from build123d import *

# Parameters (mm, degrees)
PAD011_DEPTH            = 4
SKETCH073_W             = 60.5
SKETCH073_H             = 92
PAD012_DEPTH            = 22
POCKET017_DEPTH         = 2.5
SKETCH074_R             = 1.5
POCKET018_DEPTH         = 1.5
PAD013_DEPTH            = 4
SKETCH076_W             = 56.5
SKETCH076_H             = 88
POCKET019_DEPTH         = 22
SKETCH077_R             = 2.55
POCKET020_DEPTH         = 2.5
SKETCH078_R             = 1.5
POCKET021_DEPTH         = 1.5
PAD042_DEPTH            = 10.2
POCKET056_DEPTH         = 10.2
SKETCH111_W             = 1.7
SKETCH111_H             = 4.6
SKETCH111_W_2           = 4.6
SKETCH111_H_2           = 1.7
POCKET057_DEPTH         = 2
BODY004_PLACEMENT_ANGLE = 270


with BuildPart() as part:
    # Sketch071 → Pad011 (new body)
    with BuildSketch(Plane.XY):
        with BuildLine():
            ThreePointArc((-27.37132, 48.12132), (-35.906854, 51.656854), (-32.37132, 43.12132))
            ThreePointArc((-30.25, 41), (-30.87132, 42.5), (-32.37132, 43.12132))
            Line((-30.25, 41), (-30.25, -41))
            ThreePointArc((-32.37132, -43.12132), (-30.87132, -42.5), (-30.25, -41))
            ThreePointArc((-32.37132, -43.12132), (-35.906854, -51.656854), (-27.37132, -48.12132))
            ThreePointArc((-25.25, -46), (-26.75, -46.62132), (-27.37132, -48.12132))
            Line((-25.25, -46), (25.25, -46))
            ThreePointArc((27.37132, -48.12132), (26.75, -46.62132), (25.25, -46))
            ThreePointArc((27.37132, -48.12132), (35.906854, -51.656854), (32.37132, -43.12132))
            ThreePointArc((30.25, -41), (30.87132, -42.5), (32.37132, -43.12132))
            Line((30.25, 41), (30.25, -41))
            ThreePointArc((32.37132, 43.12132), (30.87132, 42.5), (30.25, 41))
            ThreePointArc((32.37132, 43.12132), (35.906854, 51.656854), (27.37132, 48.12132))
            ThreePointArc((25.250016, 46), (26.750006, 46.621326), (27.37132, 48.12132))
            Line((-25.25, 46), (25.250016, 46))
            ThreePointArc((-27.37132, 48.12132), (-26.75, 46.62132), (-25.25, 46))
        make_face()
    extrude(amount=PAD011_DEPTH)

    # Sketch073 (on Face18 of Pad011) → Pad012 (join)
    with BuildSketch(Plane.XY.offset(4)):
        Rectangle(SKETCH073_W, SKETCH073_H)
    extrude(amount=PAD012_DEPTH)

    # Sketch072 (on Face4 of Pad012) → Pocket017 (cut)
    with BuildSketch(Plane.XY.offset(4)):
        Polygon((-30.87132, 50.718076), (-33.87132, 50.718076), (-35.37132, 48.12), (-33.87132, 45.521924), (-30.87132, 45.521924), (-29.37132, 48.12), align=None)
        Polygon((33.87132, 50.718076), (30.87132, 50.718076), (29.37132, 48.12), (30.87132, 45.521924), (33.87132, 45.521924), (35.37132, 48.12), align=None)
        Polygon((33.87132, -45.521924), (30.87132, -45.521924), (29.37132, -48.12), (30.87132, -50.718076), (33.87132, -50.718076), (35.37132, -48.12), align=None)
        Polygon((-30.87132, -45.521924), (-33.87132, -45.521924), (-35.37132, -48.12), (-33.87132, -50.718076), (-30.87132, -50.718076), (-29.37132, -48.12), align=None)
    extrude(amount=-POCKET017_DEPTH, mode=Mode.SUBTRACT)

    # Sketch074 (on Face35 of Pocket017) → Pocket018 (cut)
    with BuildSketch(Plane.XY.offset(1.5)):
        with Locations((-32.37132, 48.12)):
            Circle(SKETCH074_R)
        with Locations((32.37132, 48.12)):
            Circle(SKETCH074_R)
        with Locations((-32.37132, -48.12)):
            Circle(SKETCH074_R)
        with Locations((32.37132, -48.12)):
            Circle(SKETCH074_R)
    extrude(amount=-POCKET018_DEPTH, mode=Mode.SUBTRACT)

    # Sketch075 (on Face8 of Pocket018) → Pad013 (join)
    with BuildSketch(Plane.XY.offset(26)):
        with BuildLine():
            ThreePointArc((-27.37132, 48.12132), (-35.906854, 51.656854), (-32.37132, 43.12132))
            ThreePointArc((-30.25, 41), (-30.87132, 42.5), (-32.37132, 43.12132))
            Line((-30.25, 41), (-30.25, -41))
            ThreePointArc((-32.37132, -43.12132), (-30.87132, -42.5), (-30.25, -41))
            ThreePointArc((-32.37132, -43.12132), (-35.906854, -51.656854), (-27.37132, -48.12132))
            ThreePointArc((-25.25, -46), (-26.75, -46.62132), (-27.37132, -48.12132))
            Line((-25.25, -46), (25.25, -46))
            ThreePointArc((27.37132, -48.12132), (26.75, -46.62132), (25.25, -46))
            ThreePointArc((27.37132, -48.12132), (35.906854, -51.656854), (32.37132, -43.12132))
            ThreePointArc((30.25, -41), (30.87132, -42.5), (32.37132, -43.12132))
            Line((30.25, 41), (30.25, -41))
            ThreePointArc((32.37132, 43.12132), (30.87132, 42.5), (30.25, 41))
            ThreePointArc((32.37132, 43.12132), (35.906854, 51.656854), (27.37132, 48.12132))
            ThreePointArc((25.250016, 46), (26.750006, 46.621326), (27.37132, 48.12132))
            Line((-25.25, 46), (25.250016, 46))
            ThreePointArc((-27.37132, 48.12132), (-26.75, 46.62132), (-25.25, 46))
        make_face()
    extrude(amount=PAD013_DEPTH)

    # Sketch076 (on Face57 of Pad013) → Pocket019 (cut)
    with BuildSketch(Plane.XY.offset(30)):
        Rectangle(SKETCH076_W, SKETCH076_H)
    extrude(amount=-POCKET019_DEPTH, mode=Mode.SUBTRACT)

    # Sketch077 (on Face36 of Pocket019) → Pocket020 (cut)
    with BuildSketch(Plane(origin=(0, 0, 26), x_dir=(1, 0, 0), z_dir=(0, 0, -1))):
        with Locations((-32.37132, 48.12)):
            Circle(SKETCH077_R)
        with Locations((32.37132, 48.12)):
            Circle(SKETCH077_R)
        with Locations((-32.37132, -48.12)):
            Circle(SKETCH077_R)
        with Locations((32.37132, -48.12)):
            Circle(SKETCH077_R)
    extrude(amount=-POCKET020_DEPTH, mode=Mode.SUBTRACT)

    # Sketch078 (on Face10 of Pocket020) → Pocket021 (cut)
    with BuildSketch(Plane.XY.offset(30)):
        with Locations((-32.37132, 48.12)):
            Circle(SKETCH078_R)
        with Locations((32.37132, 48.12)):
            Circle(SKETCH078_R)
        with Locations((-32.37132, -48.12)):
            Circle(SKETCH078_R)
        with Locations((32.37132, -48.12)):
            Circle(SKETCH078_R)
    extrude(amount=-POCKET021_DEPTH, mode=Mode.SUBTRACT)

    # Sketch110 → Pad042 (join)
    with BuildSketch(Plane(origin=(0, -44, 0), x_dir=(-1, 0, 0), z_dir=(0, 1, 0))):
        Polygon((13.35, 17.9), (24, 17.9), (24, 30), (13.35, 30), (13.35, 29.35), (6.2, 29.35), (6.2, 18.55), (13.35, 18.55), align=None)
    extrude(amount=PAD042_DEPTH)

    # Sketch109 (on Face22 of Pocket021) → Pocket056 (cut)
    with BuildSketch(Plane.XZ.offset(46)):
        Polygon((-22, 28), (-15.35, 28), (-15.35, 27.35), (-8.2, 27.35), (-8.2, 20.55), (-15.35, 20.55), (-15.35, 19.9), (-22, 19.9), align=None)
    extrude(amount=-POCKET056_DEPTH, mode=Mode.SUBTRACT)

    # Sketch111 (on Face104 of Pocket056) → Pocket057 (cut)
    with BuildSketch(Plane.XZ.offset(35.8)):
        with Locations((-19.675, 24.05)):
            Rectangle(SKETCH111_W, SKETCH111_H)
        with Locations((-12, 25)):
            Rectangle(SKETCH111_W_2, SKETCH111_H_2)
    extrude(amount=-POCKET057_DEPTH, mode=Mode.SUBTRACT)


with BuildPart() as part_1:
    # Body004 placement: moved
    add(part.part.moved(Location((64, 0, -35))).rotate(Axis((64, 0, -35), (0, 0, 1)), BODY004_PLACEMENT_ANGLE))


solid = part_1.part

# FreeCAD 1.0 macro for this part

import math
import FreeCAD as App
import Part
import Sketcher
Q = App.Units.Quantity

doc = App.newDocument("Part")
params = doc.addObject("Spreadsheet::Sheet", "Params")
for row, (alias, value) in enumerate([
    ("sketch1_radius", "5 mm"),
    ("sketch1_height", "82 mm"),
    ("sketch1_width", "50.5 mm"),
    ("pad1_length", "4 mm"),
    ("sketch2_height", "92 mm"),
    ("sketch2_width", "60.5 mm"),
    ("pad2_length", "22 mm"),
    ("sketch3_width", "3 mm"),
    ("sketch3_length", "3 mm"),
    ("pocket1_length", "2.5 mm"),
    ("sketch4_diameter", "3 mm"),
    ("pocket2_length", "1.5 mm"),
    ("sketch5_radius", "5 mm"),
    ("sketch5_height", "82 mm"),
    ("sketch5_width", "50.5 mm"),
    ("pad3_length", "4 mm"),
    ("sketch6_height", "88 mm"),
    ("sketch6_width", "56.5 mm"),
    ("pocket3_length", "22 mm"),
    ("sketch7_diameter", "5.1 mm"),
    ("pocket4_length", "2.5 mm"),
    ("sketch8_diameter", "3 mm"),
    ("pocket5_length", "1.5 mm"),
    ("sketch9_height", "12.1 mm"),
    ("sketch9_height2", "10.8 mm"),
    ("sketch9_width", "10.65 mm"),
    ("sketch9_width2", "7.15 mm"),
    ("pad4_length", "10.2 mm"),
    ("sketch10_height", "8.1 mm"),
    ("sketch10_height2", "6.8 mm"),
    ("sketch10_width", "6.65 mm"),
    ("sketch10_width2", "7.15 mm"),
    ("pocket6_length", "10.2 mm"),
    ("sketch11_width", "1.7 mm"),
    ("sketch11_width2", "4.6 mm"),
    ("pocket7_length", "2 mm"),
], start=1):
    params.set(f"A{row}", alias)
    params.set(f"B{row}", "=" + value)
    params.setAlias(f"B{row}", alias)

body = doc.addObject("PartDesign::Body", "Body")

# Sketch on XY plane
sketch1 = body.newObject("Sketcher::SketchObject", "Sketch")
sketch1.AttachmentSupport = (doc.getObject("XY_Plane"), [""])
sketch1.MapMode = "FlatFace"
sketch1.addGeometry([
    Part.ArcOfCircle(Part.Circle(App.Vector(-32.4, 48.1, 0), App.Vector(0, 0, 1), 5), math.radians(0), math.radians(270)),  # 0
    Part.ArcOfCircle(Part.Circle(App.Vector(-32.4, 41, 0), App.Vector(0, 0, 1), 2.1), math.radians(0), math.radians(90)),  # 1
    Part.LineSegment(App.Vector(-30.2, 41, 0), App.Vector(-30.2, -41, 0)),  # 2
    Part.ArcOfCircle(Part.Circle(App.Vector(-32.4, -41, 0), App.Vector(0, 0, 1), 2.1), math.radians(-90), math.radians(0)),  # 3
    Part.ArcOfCircle(Part.Circle(App.Vector(-32.4, -48.1, 0), App.Vector(0, 0, 1), 5), math.radians(90), math.radians(360)),  # 4
    Part.ArcOfCircle(Part.Circle(App.Vector(-25.3, -48.1, 0), App.Vector(0, 0, 1), 2.1), math.radians(90), math.radians(180)),  # 5
    Part.LineSegment(App.Vector(-25.2, -46, 0), App.Vector(25.2, -46, 0)),  # 6
    Part.ArcOfCircle(Part.Circle(App.Vector(25.3, -48.1, 0), App.Vector(0, 0, 1), 2.1), math.radians(0), math.radians(90)),  # 7
    Part.ArcOfCircle(Part.Circle(App.Vector(32.4, -48.1, 0), App.Vector(0, 0, 1), 5), math.radians(180), math.radians(450)),  # 8
    Part.ArcOfCircle(Part.Circle(App.Vector(32.4, -41, 0), App.Vector(0, 0, 1), 2.1), math.radians(180), math.radians(270)),  # 9
    Part.LineSegment(App.Vector(30.2, -41, 0), App.Vector(30.2, 41, 0)),  # 10
    Part.ArcOfCircle(Part.Circle(App.Vector(32.4, 41, 0), App.Vector(0, 0, 1), 2.1), math.radians(90), math.radians(180)),  # 11
    Part.ArcOfCircle(Part.Circle(App.Vector(32.4, 48.1, 0), App.Vector(0, 0, 1), 5), math.radians(-90), math.radians(180)),  # 12
    Part.ArcOfCircle(Part.Circle(App.Vector(25.3, 48.1, 0), App.Vector(0, 0, 1), 2.1), math.radians(-90), math.radians(0)),  # 13
    Part.LineSegment(App.Vector(25.3, 46, 0), App.Vector(-25.2, 46, 0)),  # 14
    Part.ArcOfCircle(Part.Circle(App.Vector(-25.3, 48.1, 0), App.Vector(0, 0, 1), 2.1), math.radians(180), math.radians(270)),  # 15
], False)
sketch1.addConstraint([
    Sketcher.Constraint("Tangent", 0, 2, 1, 2),
    Sketcher.Constraint("Tangent", 1, 1, 2, 1),
    Sketcher.Constraint("Tangent", 2, 2, 3, 2),
    Sketcher.Constraint("Tangent", 3, 1, 4, 1),
    Sketcher.Constraint("Tangent", 4, 2, 5, 2),
    Sketcher.Constraint("Tangent", 5, 1, 6, 1),
    Sketcher.Constraint("Tangent", 6, 2, 7, 2),
    Sketcher.Constraint("Tangent", 7, 1, 8, 1),
    Sketcher.Constraint("Tangent", 8, 2, 9, 2),
    Sketcher.Constraint("Tangent", 9, 1, 10, 1),
    Sketcher.Constraint("Tangent", 10, 2, 11, 2),
    Sketcher.Constraint("Tangent", 11, 1, 12, 1),
    Sketcher.Constraint("Tangent", 12, 2, 13, 2),
    Sketcher.Constraint("Coincident", 13, 1, 14, 1),
    Sketcher.Constraint("Tangent", 14, 2, 15, 2),
    Sketcher.Constraint("Tangent", 15, 1, 0, 1),
    Sketcher.Constraint("Vertical", 2),
    Sketcher.Constraint("Horizontal", 6),
    Sketcher.Constraint("Vertical", 10),
    Sketcher.Constraint("Horizontal", 14),
    Sketcher.Constraint("Equal", 1, 3),
    Sketcher.Constraint("Equal", 0, 4),
    Sketcher.Constraint("Equal", 3, 5),
    Sketcher.Constraint("Equal", 5, 7),
    Sketcher.Constraint("Equal", 4, 8),
    Sketcher.Constraint("Equal", 7, 9),
    Sketcher.Constraint("Equal", 9, 11),
    Sketcher.Constraint("Equal", 8, 12),
    Sketcher.Constraint("Equal", 11, 13),
    Sketcher.Constraint("Equal", 13, 15),
    Sketcher.Constraint("Symmetric", 0, 3, 8, 3, -1, 1),
    Sketcher.Constraint("Symmetric", 3, 3, 11, 3, -1, 1),
    Sketcher.Constraint("Symmetric", 5, 3, 13, 3, -1, 1),
    Sketcher.Constraint("Symmetric", 4, 3, 8, 3, -2),
    Sketcher.Constraint("Horizontal", 4, 3, 5, 3),
    Sketcher.Constraint("Vertical", 0, 3, 1, 3),
    Sketcher.Constraint("Radius", 0, 5.0),
    Sketcher.Constraint("DistanceY", 2, 2, 2, 1, 82.0),
    Sketcher.Constraint("DistanceX", 6, 1, 6, 2, 50.5),
    Sketcher.Constraint("Radius", 1, 2.121319),
    Sketcher.Constraint("DistanceX", 14, 2, 14, 1, 50.500016),
])
sketch1.setExpression("Constraints[36]", "Params.sketch1_radius")
sketch1.setExpression("Constraints[37]", "Params.sketch1_height")
sketch1.setExpression("Constraints[38]", "Params.sketch1_width")
pad1 = body.newObject("PartDesign::Pad", "Pad")
pad1.Profile = sketch1
pad1.setExpression("Length", "Params.pad1_length")

# Sketch on XY plane
sketch2 = body.newObject("Sketcher::SketchObject", "Sketch001")
sketch2.AttachmentSupport = (doc.getObject("XY_Plane"), [""])
sketch2.MapMode = "FlatFace"
sketch2.AttachmentOffset = App.Placement(App.Vector(0, 0, 4), App.Rotation())
sketch2.addGeometry([
    Part.LineSegment(App.Vector(-30, 46, 0), App.Vector(-30, -46, 0)),
    Part.LineSegment(App.Vector(-30, -46, 0), App.Vector(30, -46, 0)),
    Part.LineSegment(App.Vector(30, -46, 0), App.Vector(30, 46, 0)),
    Part.LineSegment(App.Vector(30, 46, 0), App.Vector(-30, 46, 0)),
], False)
sketch2.addConstraint([
    Sketcher.Constraint("Coincident", 0, 2, 1, 1),
    Sketcher.Constraint("Coincident", 1, 2, 2, 1),
    Sketcher.Constraint("Coincident", 2, 2, 3, 1),
    Sketcher.Constraint("Coincident", 3, 2, 0, 1),
    Sketcher.Constraint("Vertical", 0),
    Sketcher.Constraint("Horizontal", 1),
    Sketcher.Constraint("Vertical", 2),
    Sketcher.Constraint("Horizontal", 3),
    Sketcher.Constraint("Symmetric", 0, 2, 2, 2, -1, 1),
    Sketcher.Constraint("DistanceY", 0, 2, 0, 1, 92.0),
    Sketcher.Constraint("DistanceX", 1, 1, 1, 2, 60.5),
])
sketch2.setExpression("Constraints[9]", "Params.sketch2_height")
sketch2.setExpression("Constraints[10]", "Params.sketch2_width")
pad2 = body.newObject("PartDesign::Pad", "Pad001")
pad2.Profile = sketch2
pad2.setExpression("Length", "Params.pad2_length")

# Sketch on XY plane
sketch3 = body.newObject("Sketcher::SketchObject", "Sketch002")
sketch3.AttachmentSupport = (doc.getObject("XY_Plane"), [""])
sketch3.MapMode = "FlatFace"
sketch3.AttachmentOffset = App.Placement(App.Vector(0, 0, 4), App.Rotation())
sketch3.addGeometry([
    Part.LineSegment(App.Vector(-30.9, 50.7, 0), App.Vector(-33.9, 50.7, 0)),  # 0
    Part.LineSegment(App.Vector(-33.9, 50.7, 0), App.Vector(-35.4, 48.1, 0)),  # 1
    Part.LineSegment(App.Vector(-35.4, 48.1, 0), App.Vector(-33.9, 45.5, 0)),  # 2
    Part.LineSegment(App.Vector(-33.9, 45.5, 0), App.Vector(-30.9, 45.5, 0)),  # 3
    Part.LineSegment(App.Vector(-30.9, 45.5, 0), App.Vector(-29.4, 48.1, 0)),  # 4
    Part.LineSegment(App.Vector(-29.4, 48.1, 0), App.Vector(-30.9, 50.7, 0)),  # 5
    Part.LineSegment(App.Vector(33.9, 50.7, 0), App.Vector(30.9, 50.7, 0)),  # 6
    Part.LineSegment(App.Vector(30.9, 50.7, 0), App.Vector(29.4, 48.1, 0)),  # 7
    Part.LineSegment(App.Vector(29.4, 48.1, 0), App.Vector(30.9, 45.5, 0)),  # 8
    Part.LineSegment(App.Vector(30.9, 45.5, 0), App.Vector(33.9, 45.5, 0)),  # 9
    Part.LineSegment(App.Vector(33.9, 45.5, 0), App.Vector(35.4, 48.1, 0)),  # 10
    Part.LineSegment(App.Vector(35.4, 48.1, 0), App.Vector(33.9, 50.7, 0)),  # 11
    Part.LineSegment(App.Vector(33.9, -45.5, 0), App.Vector(30.9, -45.5, 0)),  # 12
    Part.LineSegment(App.Vector(30.9, -45.5, 0), App.Vector(29.4, -48.1, 0)),  # 13
    Part.LineSegment(App.Vector(29.4, -48.1, 0), App.Vector(30.9, -50.7, 0)),  # 14
    Part.LineSegment(App.Vector(30.9, -50.7, 0), App.Vector(33.9, -50.7, 0)),  # 15
    Part.LineSegment(App.Vector(33.9, -50.7, 0), App.Vector(35.4, -48.1, 0)),  # 16
    Part.LineSegment(App.Vector(35.4, -48.1, 0), App.Vector(33.9, -45.5, 0)),  # 17
    Part.LineSegment(App.Vector(-30.9, -45.5, 0), App.Vector(-33.9, -45.5, 0)),  # 18
    Part.LineSegment(App.Vector(-33.9, -45.5, 0), App.Vector(-35.4, -48.1, 0)),  # 19
    Part.LineSegment(App.Vector(-35.4, -48.1, 0), App.Vector(-33.9, -50.7, 0)),  # 20
    Part.LineSegment(App.Vector(-33.9, -50.7, 0), App.Vector(-30.9, -50.7, 0)),  # 21
    Part.LineSegment(App.Vector(-30.9, -50.7, 0), App.Vector(-29.4, -48.1, 0)),  # 22
    Part.LineSegment(App.Vector(-29.4, -48.1, 0), App.Vector(-30.9, -45.5, 0)),  # 23
], False)
sketch3.addConstraint([
    Sketcher.Constraint("Coincident", 0, 2, 1, 1),
    Sketcher.Constraint("Coincident", 1, 2, 2, 1),
    Sketcher.Constraint("Coincident", 2, 2, 3, 1),
    Sketcher.Constraint("Coincident", 3, 2, 4, 1),
    Sketcher.Constraint("Coincident", 4, 2, 5, 1),
    Sketcher.Constraint("Coincident", 5, 2, 0, 1),
    Sketcher.Constraint("Coincident", 6, 2, 7, 1),
    Sketcher.Constraint("Coincident", 7, 2, 8, 1),
    Sketcher.Constraint("Coincident", 8, 2, 9, 1),
    Sketcher.Constraint("Coincident", 9, 2, 10, 1),
    Sketcher.Constraint("Coincident", 10, 2, 11, 1),
    Sketcher.Constraint("Coincident", 11, 2, 6, 1),
    Sketcher.Constraint("Coincident", 12, 2, 13, 1),
    Sketcher.Constraint("Coincident", 13, 2, 14, 1),
    Sketcher.Constraint("Coincident", 14, 2, 15, 1),
    Sketcher.Constraint("Coincident", 15, 2, 16, 1),
    Sketcher.Constraint("Coincident", 16, 2, 17, 1),
    Sketcher.Constraint("Coincident", 17, 2, 12, 1),
    Sketcher.Constraint("Coincident", 18, 2, 19, 1),
    Sketcher.Constraint("Coincident", 19, 2, 20, 1),
    Sketcher.Constraint("Coincident", 20, 2, 21, 1),
    Sketcher.Constraint("Coincident", 21, 2, 22, 1),
    Sketcher.Constraint("Coincident", 22, 2, 23, 1),
    Sketcher.Constraint("Coincident", 23, 2, 18, 1),
    Sketcher.Constraint("Horizontal", 0),
    Sketcher.Constraint("Horizontal", 3),
    Sketcher.Constraint("Horizontal", 6),
    Sketcher.Constraint("Horizontal", 9),
    Sketcher.Constraint("Horizontal", 12),
    Sketcher.Constraint("Horizontal", 15),
    Sketcher.Constraint("Horizontal", 18),
    Sketcher.Constraint("Horizontal", 21),
    Sketcher.Constraint("Symmetric", 3, 2, 12, 2, -1, 1),
    Sketcher.Constraint("Symmetric", 4, 2, 13, 2, -1, 1),
    Sketcher.Constraint("Symmetric", 5, 2, 14, 2, -1, 1),
    Sketcher.Constraint("Symmetric", 1, 2, 16, 2, -1, 1),
    Sketcher.Constraint("Symmetric", 9, 2, 18, 2, -1, 1),
    Sketcher.Constraint("Symmetric", 10, 2, 19, 2, -1, 1),
    Sketcher.Constraint("Symmetric", 11, 2, 20, 2, -1, 1),
    Sketcher.Constraint("Symmetric", 7, 2, 22, 2, -1, 1),
    Sketcher.Constraint("Symmetric", 5, 2, 6, 2, -2),
    Sketcher.Constraint("Symmetric", 4, 2, 7, 2, -2),
    Sketcher.Constraint("Symmetric", 3, 2, 8, 2, -2),
    Sketcher.Constraint("Symmetric", 1, 2, 10, 2, -2),
    Sketcher.Constraint("Parallel", 1, 4),
    Sketcher.Constraint("Parallel", 2, 5),
    Sketcher.Constraint("Parallel", 4, 7),
    Sketcher.Constraint("Parallel", 7, 10),
    Sketcher.Constraint("Parallel", 8, 11),
    Sketcher.Constraint("Parallel", 13, 16),
    Sketcher.Constraint("Parallel", 14, 17),
    Sketcher.Constraint("Parallel", 19, 22),
    Sketcher.Constraint("Parallel", 20, 23),
    Sketcher.Constraint("Horizontal", 1, 2, 4, 2),
    Sketcher.Constraint("Vertical", 0, 2, 2, 2),
    Sketcher.Constraint("DistanceX", 0, 2, 0, 1, 3.0),
    Sketcher.Constraint("Angle", 1, Q("-120.000002 deg")),
    Sketcher.Constraint("Distance", 1, 3.0),
    Sketcher.Constraint("DistanceY", -1, 1, 1, 2, 48.12),
    Sketcher.Constraint("DistanceX", 0, 2, -1, 1, 33.87132),
])
sketch3.setExpression("Constraints[55]", "Params.sketch3_width")
sketch3.setExpression("Constraints[57]", "Params.sketch3_length")
pocket1 = body.newObject("PartDesign::Pocket", "Pocket")
pocket1.Profile = sketch3
pocket1.setExpression("Length", "Params.pocket1_length")

# Sketch on XY plane
sketch4 = body.newObject("Sketcher::SketchObject", "Sketch003")
sketch4.AttachmentSupport = (doc.getObject("XY_Plane"), [""])
sketch4.MapMode = "FlatFace"
sketch4.AttachmentOffset = App.Placement(App.Vector(0, 0, 1.5), App.Rotation())
sketch4.addGeometry([
    Part.Circle(App.Vector(-32.4, 48.1, 0), App.Vector(0, 0, 1), 1.5),
    Part.Circle(App.Vector(32.4, 48.1, 0), App.Vector(0, 0, 1), 1.5),
    Part.Circle(App.Vector(-32.4, -48.1, 0), App.Vector(0, 0, 1), 1.5),
    Part.Circle(App.Vector(32.4, -48.1, 0), App.Vector(0, 0, 1), 1.5),
], False)
sketch4.addConstraint([
    Sketcher.Constraint("Equal", 0, 1),
    Sketcher.Constraint("Equal", 1, 2),
    Sketcher.Constraint("Equal", 2, 3),
    Sketcher.Constraint("Symmetric", 1, 3, 2, 3, -1, 1),
    Sketcher.Constraint("Symmetric", 0, 3, 3, 3, -1, 1),
    Sketcher.Constraint("Symmetric", 0, 3, 1, 3, -2),
    Sketcher.Constraint("Diameter", 0, 3.0),
    Sketcher.Constraint("DistanceY", -1, 1, 0, 3, 48.12),
    Sketcher.Constraint("DistanceX", 0, 3, -1, 1, 32.37132),
])
sketch4.setExpression("Constraints[6]", "Params.sketch4_diameter")
pocket2 = body.newObject("PartDesign::Pocket", "Pocket001")
pocket2.Profile = sketch4
pocket2.setExpression("Length", "Params.pocket2_length")

# Sketch on XY plane
sketch5 = body.newObject("Sketcher::SketchObject", "Sketch004")
sketch5.AttachmentSupport = (doc.getObject("XY_Plane"), [""])
sketch5.MapMode = "FlatFace"
sketch5.AttachmentOffset = App.Placement(App.Vector(0, 0, 26), App.Rotation())
sketch5.addGeometry([
    Part.ArcOfCircle(Part.Circle(App.Vector(-32.4, 48.1, 0), App.Vector(0, 0, 1), 5), math.radians(0), math.radians(270)),  # 0
    Part.ArcOfCircle(Part.Circle(App.Vector(-32.4, 41, 0), App.Vector(0, 0, 1), 2.1), math.radians(0), math.radians(90)),  # 1
    Part.LineSegment(App.Vector(-30.2, 41, 0), App.Vector(-30.2, -41, 0)),  # 2
    Part.ArcOfCircle(Part.Circle(App.Vector(-32.4, -41, 0), App.Vector(0, 0, 1), 2.1), math.radians(-90), math.radians(0)),  # 3
    Part.ArcOfCircle(Part.Circle(App.Vector(-32.4, -48.1, 0), App.Vector(0, 0, 1), 5), math.radians(90), math.radians(360)),  # 4
    Part.ArcOfCircle(Part.Circle(App.Vector(-25.3, -48.1, 0), App.Vector(0, 0, 1), 2.1), math.radians(90), math.radians(180)),  # 5
    Part.LineSegment(App.Vector(-25.2, -46, 0), App.Vector(25.2, -46, 0)),  # 6
    Part.ArcOfCircle(Part.Circle(App.Vector(25.3, -48.1, 0), App.Vector(0, 0, 1), 2.1), math.radians(0), math.radians(90)),  # 7
    Part.ArcOfCircle(Part.Circle(App.Vector(32.4, -48.1, 0), App.Vector(0, 0, 1), 5), math.radians(180), math.radians(450)),  # 8
    Part.ArcOfCircle(Part.Circle(App.Vector(32.4, -41, 0), App.Vector(0, 0, 1), 2.1), math.radians(180), math.radians(270)),  # 9
    Part.LineSegment(App.Vector(30.2, -41, 0), App.Vector(30.2, 41, 0)),  # 10
    Part.ArcOfCircle(Part.Circle(App.Vector(32.4, 41, 0), App.Vector(0, 0, 1), 2.1), math.radians(90), math.radians(180)),  # 11
    Part.ArcOfCircle(Part.Circle(App.Vector(32.4, 48.1, 0), App.Vector(0, 0, 1), 5), math.radians(-90), math.radians(180)),  # 12
    Part.ArcOfCircle(Part.Circle(App.Vector(25.3, 48.1, 0), App.Vector(0, 0, 1), 2.1), math.radians(-90), math.radians(0)),  # 13
    Part.LineSegment(App.Vector(25.3, 46, 0), App.Vector(-25.2, 46, 0)),  # 14
    Part.ArcOfCircle(Part.Circle(App.Vector(-25.3, 48.1, 0), App.Vector(0, 0, 1), 2.1), math.radians(180), math.radians(270)),  # 15
], False)
sketch5.addConstraint([
    Sketcher.Constraint("Tangent", 0, 2, 1, 2),
    Sketcher.Constraint("Tangent", 1, 1, 2, 1),
    Sketcher.Constraint("Tangent", 2, 2, 3, 2),
    Sketcher.Constraint("Tangent", 3, 1, 4, 1),
    Sketcher.Constraint("Tangent", 4, 2, 5, 2),
    Sketcher.Constraint("Tangent", 5, 1, 6, 1),
    Sketcher.Constraint("Tangent", 6, 2, 7, 2),
    Sketcher.Constraint("Tangent", 7, 1, 8, 1),
    Sketcher.Constraint("Tangent", 8, 2, 9, 2),
    Sketcher.Constraint("Tangent", 9, 1, 10, 1),
    Sketcher.Constraint("Tangent", 10, 2, 11, 2),
    Sketcher.Constraint("Tangent", 11, 1, 12, 1),
    Sketcher.Constraint("Tangent", 12, 2, 13, 2),
    Sketcher.Constraint("Coincident", 13, 1, 14, 1),
    Sketcher.Constraint("Tangent", 14, 2, 15, 2),
    Sketcher.Constraint("Tangent", 15, 1, 0, 1),
    Sketcher.Constraint("Vertical", 2),
    Sketcher.Constraint("Horizontal", 6),
    Sketcher.Constraint("Vertical", 10),
    Sketcher.Constraint("Horizontal", 14),
    Sketcher.Constraint("Equal", 1, 3),
    Sketcher.Constraint("Equal", 0, 4),
    Sketcher.Constraint("Equal", 3, 5),
    Sketcher.Constraint("Equal", 5, 7),
    Sketcher.Constraint("Equal", 4, 8),
    Sketcher.Constraint("Equal", 7, 9),
    Sketcher.Constraint("Equal", 9, 11),
    Sketcher.Constraint("Equal", 8, 12),
    Sketcher.Constraint("Equal", 11, 13),
    Sketcher.Constraint("Equal", 13, 15),
    Sketcher.Constraint("Symmetric", 0, 3, 8, 3, -1, 1),
    Sketcher.Constraint("Symmetric", 3, 3, 11, 3, -1, 1),
    Sketcher.Constraint("Symmetric", 5, 3, 13, 3, -1, 1),
    Sketcher.Constraint("Symmetric", 4, 3, 8, 3, -2),
    Sketcher.Constraint("Horizontal", 4, 3, 5, 3),
    Sketcher.Constraint("Vertical", 0, 3, 1, 3),
    Sketcher.Constraint("Radius", 0, 5.0),
    Sketcher.Constraint("DistanceY", 2, 2, 2, 1, 82.0),
    Sketcher.Constraint("DistanceX", 6, 1, 6, 2, 50.5),
    Sketcher.Constraint("Radius", 1, 2.121319),
    Sketcher.Constraint("DistanceX", 14, 2, 14, 1, 50.500016),
])
sketch5.setExpression("Constraints[36]", "Params.sketch5_radius")
sketch5.setExpression("Constraints[37]", "Params.sketch5_height")
sketch5.setExpression("Constraints[38]", "Params.sketch5_width")
pad3 = body.newObject("PartDesign::Pad", "Pad002")
pad3.Profile = sketch5
pad3.setExpression("Length", "Params.pad3_length")

# Sketch on XY plane
sketch6 = body.newObject("Sketcher::SketchObject", "Sketch005")
sketch6.AttachmentSupport = (doc.getObject("XY_Plane"), [""])
sketch6.MapMode = "FlatFace"
sketch6.AttachmentOffset = App.Placement(App.Vector(0, 0, 30), App.Rotation())
sketch6.addGeometry([
    Part.LineSegment(App.Vector(-28, 44, 0), App.Vector(-28, -44, 0)),
    Part.LineSegment(App.Vector(-28, -44, 0), App.Vector(28, -44, 0)),
    Part.LineSegment(App.Vector(28, -44, 0), App.Vector(28, 44, 0)),
    Part.LineSegment(App.Vector(28, 44, 0), App.Vector(-28, 44, 0)),
], False)
sketch6.addConstraint([
    Sketcher.Constraint("Coincident", 0, 2, 1, 1),
    Sketcher.Constraint("Coincident", 1, 2, 2, 1),
    Sketcher.Constraint("Coincident", 2, 2, 3, 1),
    Sketcher.Constraint("Coincident", 3, 2, 0, 1),
    Sketcher.Constraint("Vertical", 0),
    Sketcher.Constraint("Horizontal", 1),
    Sketcher.Constraint("Vertical", 2),
    Sketcher.Constraint("Horizontal", 3),
    Sketcher.Constraint("Symmetric", 0, 2, 2, 2, -1, 1),
    Sketcher.Constraint("DistanceY", 0, 2, 0, 1, 88.0),
    Sketcher.Constraint("DistanceX", 1, 1, 1, 2, 56.5),
])
sketch6.setExpression("Constraints[9]", "Params.sketch6_height")
sketch6.setExpression("Constraints[10]", "Params.sketch6_width")
pocket3 = body.newObject("PartDesign::Pocket", "Pocket002")
pocket3.Profile = sketch6
pocket3.setExpression("Length", "Params.pocket3_length")

# Sketch on XY plane
sketch7 = body.newObject("Sketcher::SketchObject", "Sketch006")
sketch7.AttachmentSupport = (doc.getObject("XY_Plane"), [""])
sketch7.MapMode = "FlatFace"
sketch7.AttachmentOffset = App.Placement(App.Vector(0, 0, 26), App.Rotation())
sketch7.addGeometry([
    Part.Circle(App.Vector(-32.4, -48.1, 0), App.Vector(0, 0, 1), 2.5),
    Part.Circle(App.Vector(32.4, -48.1, 0), App.Vector(0, 0, 1), 2.5),
    Part.Circle(App.Vector(-32.4, 48.1, 0), App.Vector(0, 0, 1), 2.5),
    Part.Circle(App.Vector(32.4, 48.1, 0), App.Vector(0, 0, 1), 2.5),
], False)
sketch7.addConstraint([
    Sketcher.Constraint("Equal", 0, 1),
    Sketcher.Constraint("Equal", 1, 2),
    Sketcher.Constraint("Equal", 2, 3),
    Sketcher.Constraint("Symmetric", 1, 3, 2, 3, -1, 1),
    Sketcher.Constraint("Symmetric", 0, 3, 3, 3, -1, 1),
    Sketcher.Constraint("Symmetric", 0, 3, 1, 3, -2),
    Sketcher.Constraint("Diameter", 0, 5.1),
    Sketcher.Constraint("DistanceY", 0, 3, -1, 1, 48.12),
    Sketcher.Constraint("DistanceX", 0, 3, -1, 1, 32.37132),
])
sketch7.setExpression("Constraints[6]", "Params.sketch7_diameter")
pocket4 = body.newObject("PartDesign::Pocket", "Pocket003")
pocket4.Profile = sketch7
pocket4.setExpression("Length", "Params.pocket4_length")
pocket4.Reversed = True

# Sketch on XY plane
sketch8 = body.newObject("Sketcher::SketchObject", "Sketch007")
sketch8.AttachmentSupport = (doc.getObject("XY_Plane"), [""])
sketch8.MapMode = "FlatFace"
sketch8.AttachmentOffset = App.Placement(App.Vector(0, 0, 30), App.Rotation())
sketch8.addGeometry([
    Part.Circle(App.Vector(-32.4, 48.1, 0), App.Vector(0, 0, 1), 1.5),
    Part.Circle(App.Vector(32.4, 48.1, 0), App.Vector(0, 0, 1), 1.5),
    Part.Circle(App.Vector(-32.4, -48.1, 0), App.Vector(0, 0, 1), 1.5),
    Part.Circle(App.Vector(32.4, -48.1, 0), App.Vector(0, 0, 1), 1.5),
], False)
sketch8.addConstraint([
    Sketcher.Constraint("Equal", 0, 1),
    Sketcher.Constraint("Equal", 1, 2),
    Sketcher.Constraint("Equal", 2, 3),
    Sketcher.Constraint("Symmetric", 1, 3, 2, 3, -1, 1),
    Sketcher.Constraint("Symmetric", 0, 3, 3, 3, -1, 1),
    Sketcher.Constraint("Symmetric", 0, 3, 1, 3, -2),
    Sketcher.Constraint("Diameter", 0, 3.0),
    Sketcher.Constraint("DistanceY", -1, 1, 0, 3, 48.12),
    Sketcher.Constraint("DistanceX", 0, 3, -1, 1, 32.37132),
])
sketch8.setExpression("Constraints[6]", "Params.sketch8_diameter")
pocket5 = body.newObject("PartDesign::Pocket", "Pocket004")
pocket5.Profile = sketch8
pocket5.setExpression("Length", "Params.pocket5_length")

# Sketch on XZ plane
sketch9 = body.newObject("Sketcher::SketchObject", "Sketch008")
sketch9.AttachmentSupport = (doc.getObject("XZ_Plane"), [""])
sketch9.MapMode = "FlatFace"
sketch9.AttachmentOffset = App.Placement(App.Vector(0, 0, 44), App.Rotation())
sketch9.addGeometry([
    Part.LineSegment(App.Vector(-13.3, 17.9, 0), App.Vector(-24, 17.9, 0)),  # 0
    Part.LineSegment(App.Vector(-24, 17.9, 0), App.Vector(-24, 30, 0)),  # 1
    Part.LineSegment(App.Vector(-24, 30, 0), App.Vector(-13.3, 30, 0)),  # 2
    Part.LineSegment(App.Vector(-13.3, 30, 0), App.Vector(-13.3, 29.4, 0)),  # 3
    Part.LineSegment(App.Vector(-13.3, 29.4, 0), App.Vector(-6.2, 29.4, 0)),  # 4
    Part.LineSegment(App.Vector(-6.2, 29.4, 0), App.Vector(-6.2, 18.6, 0)),  # 5
    Part.LineSegment(App.Vector(-6.2, 18.6, 0), App.Vector(-13.3, 18.6, 0)),  # 6
    Part.LineSegment(App.Vector(-13.3, 18.6, 0), App.Vector(-13.3, 17.9, 0)),  # 7
], False)
sketch9.addConstraint([
    Sketcher.Constraint("Coincident", 0, 2, 1, 1),
    Sketcher.Constraint("Coincident", 1, 2, 2, 1),
    Sketcher.Constraint("Coincident", 2, 2, 3, 1),
    Sketcher.Constraint("Coincident", 3, 2, 4, 1),
    Sketcher.Constraint("Coincident", 4, 2, 5, 1),
    Sketcher.Constraint("Coincident", 5, 2, 6, 1),
    Sketcher.Constraint("Coincident", 6, 2, 7, 1),
    Sketcher.Constraint("Coincident", 7, 2, 0, 1),
    Sketcher.Constraint("Horizontal", 0),
    Sketcher.Constraint("Vertical", 1),
    Sketcher.Constraint("Horizontal", 2),
    Sketcher.Constraint("Vertical", 3),
    Sketcher.Constraint("Horizontal", 4),
    Sketcher.Constraint("Vertical", 5),
    Sketcher.Constraint("Horizontal", 6),
    Sketcher.Constraint("Vertical", 7),
    Sketcher.Constraint("Vertical", 3, 2, 6, 2),
    Sketcher.Constraint("Equal", 3, 7),
    Sketcher.Constraint("DistanceY", 1, 1, 1, 2, 12.1),
    Sketcher.Constraint("DistanceY", 5, 2, 5, 1, 10.8),
    Sketcher.Constraint("DistanceX", 0, 2, -1, 1, 24.0),
    Sketcher.Constraint("DistanceY", -1, 1, 1, 2, 30.0),
    Sketcher.Constraint("DistanceX", 0, 2, 0, 1, 10.65),
    Sketcher.Constraint("DistanceX", 4, 1, 4, 2, 7.15),
])
sketch9.setExpression("Constraints[18]", "Params.sketch9_height")
sketch9.setExpression("Constraints[19]", "Params.sketch9_height2")
sketch9.setExpression("Constraints[22]", "Params.sketch9_width")
sketch9.setExpression("Constraints[23]", "Params.sketch9_width2")
pad4 = body.newObject("PartDesign::Pad", "Pad003")
pad4.Profile = sketch9
pad4.setExpression("Length", "Params.pad4_length")
pad4.Reversed = True

# Sketch on XZ plane
sketch10 = body.newObject("Sketcher::SketchObject", "Sketch009")
sketch10.AttachmentSupport = (doc.getObject("XZ_Plane"), [""])
sketch10.MapMode = "FlatFace"
sketch10.AttachmentOffset = App.Placement(App.Vector(0, 0, 46), App.Rotation())
sketch10.addGeometry([
    Part.LineSegment(App.Vector(-15.3, 28, 0), App.Vector(-22, 28, 0)),  # 0
    Part.LineSegment(App.Vector(-22, 28, 0), App.Vector(-22, 19.9, 0)),  # 1
    Part.LineSegment(App.Vector(-22, 19.9, 0), App.Vector(-15.3, 19.9, 0)),  # 2
    Part.LineSegment(App.Vector(-15.3, 19.9, 0), App.Vector(-15.3, 20.6, 0)),  # 3
    Part.LineSegment(App.Vector(-15.3, 20.6, 0), App.Vector(-8.2, 20.6, 0)),  # 4
    Part.LineSegment(App.Vector(-8.2, 20.6, 0), App.Vector(-8.2, 27.4, 0)),  # 5
    Part.LineSegment(App.Vector(-8.2, 27.4, 0), App.Vector(-15.3, 27.4, 0)),  # 6
    Part.LineSegment(App.Vector(-15.3, 27.4, 0), App.Vector(-15.3, 28, 0)),  # 7
], False)
sketch10.addConstraint([
    Sketcher.Constraint("Coincident", 0, 2, 1, 1),
    Sketcher.Constraint("Coincident", 1, 2, 2, 1),
    Sketcher.Constraint("Coincident", 2, 2, 3, 1),
    Sketcher.Constraint("Coincident", 3, 2, 4, 1),
    Sketcher.Constraint("Coincident", 4, 2, 5, 1),
    Sketcher.Constraint("Coincident", 5, 2, 6, 1),
    Sketcher.Constraint("Coincident", 6, 2, 7, 1),
    Sketcher.Constraint("Coincident", 7, 2, 0, 1),
    Sketcher.Constraint("Horizontal", 0),
    Sketcher.Constraint("Vertical", 1),
    Sketcher.Constraint("Horizontal", 2),
    Sketcher.Constraint("Vertical", 3),
    Sketcher.Constraint("Horizontal", 4),
    Sketcher.Constraint("Vertical", 5),
    Sketcher.Constraint("Horizontal", 6),
    Sketcher.Constraint("Vertical", 7),
    Sketcher.Constraint("Vertical", 3, 2, 6, 2),
    Sketcher.Constraint("Equal", 3, 7),
    Sketcher.Constraint("DistanceY", 1, 2, 1, 1, 8.1),
    Sketcher.Constraint("DistanceY", 5, 1, 5, 2, 6.8),
    Sketcher.Constraint("DistanceX", 0, 2, -1, 1, 22.0),
    Sketcher.Constraint("DistanceY", -1, 1, 0, 2, 28.0),
    Sketcher.Constraint("DistanceX", 0, 2, 0, 1, 6.65),
    Sketcher.Constraint("DistanceX", 4, 1, 4, 2, 7.15),
])
sketch10.setExpression("Constraints[18]", "Params.sketch10_height")
sketch10.setExpression("Constraints[19]", "Params.sketch10_height2")
sketch10.setExpression("Constraints[22]", "Params.sketch10_width")
sketch10.setExpression("Constraints[23]", "Params.sketch10_width2")
pocket6 = body.newObject("PartDesign::Pocket", "Pocket005")
pocket6.Profile = sketch10
pocket6.setExpression("Length", "Params.pocket6_length")

# Sketch on XZ plane
sketch11 = body.newObject("Sketcher::SketchObject", "Sketch010")
sketch11.AttachmentSupport = (doc.getObject("XZ_Plane"), [""])
sketch11.MapMode = "FlatFace"
sketch11.AttachmentOffset = App.Placement(App.Vector(0, 0, 35.8), App.Rotation())
sketch11.addGeometry([
    Part.LineSegment(App.Vector(-20.5, 26.4, 0), App.Vector(-20.5, 21.8, 0)),  # 0
    Part.LineSegment(App.Vector(-20.5, 21.8, 0), App.Vector(-18.8, 21.8, 0)),  # 1
    Part.LineSegment(App.Vector(-18.8, 21.8, 0), App.Vector(-18.8, 26.4, 0)),  # 2
    Part.LineSegment(App.Vector(-18.8, 26.4, 0), App.Vector(-20.5, 26.4, 0)),  # 3
    Part.LineSegment(App.Vector(-14.3, 25.9, 0), App.Vector(-14.3, 24.1, 0)),  # 4
    Part.LineSegment(App.Vector(-14.3, 24.1, 0), App.Vector(-9.7, 24.1, 0)),  # 5
    Part.LineSegment(App.Vector(-9.7, 24.1, 0), App.Vector(-9.7, 25.9, 0)),  # 6
    Part.LineSegment(App.Vector(-9.7, 25.9, 0), App.Vector(-14.3, 25.9, 0)),  # 7
], False)
sketch11.addConstraint([
    Sketcher.Constraint("Coincident", 0, 2, 1, 1),
    Sketcher.Constraint("Coincident", 1, 2, 2, 1),
    Sketcher.Constraint("Coincident", 2, 2, 3, 1),
    Sketcher.Constraint("Coincident", 3, 2, 0, 1),
    Sketcher.Constraint("Coincident", 4, 2, 5, 1),
    Sketcher.Constraint("Coincident", 5, 2, 6, 1),
    Sketcher.Constraint("Coincident", 6, 2, 7, 1),
    Sketcher.Constraint("Coincident", 7, 2, 4, 1),
    Sketcher.Constraint("Vertical", 0),
    Sketcher.Constraint("Horizontal", 1),
    Sketcher.Constraint("Vertical", 2),
    Sketcher.Constraint("Horizontal", 3),
    Sketcher.Constraint("Vertical", 4),
    Sketcher.Constraint("Horizontal", 5),
    Sketcher.Constraint("Vertical", 6),
    Sketcher.Constraint("Horizontal", 7),
    Sketcher.Constraint("Equal", 7, 0),
    Sketcher.Constraint("Equal", 3, 4),
    Sketcher.Constraint("DistanceX", 1, 1, 1, 2, 1.7),
    Sketcher.Constraint("DistanceX", 5, 1, 5, 2, 4.6),
    Sketcher.Constraint("DistanceX", 4, 2, -1, 1, 14.3),
    Sketcher.Constraint("DistanceY", 4, 2, 2, 2, 2.2),
    Sketcher.Constraint("DistanceY", -1, 1, 0, 2, 21.75),
    Sketcher.Constraint("DistanceX", 0, 2, -1, 1, 20.525),
])
sketch11.setExpression("Constraints[18]", "Params.sketch11_width")
sketch11.setExpression("Constraints[19]", "Params.sketch11_width2")
pocket7 = body.newObject("PartDesign::Pocket", "Pocket006")
pocket7.Profile = sketch11
pocket7.setExpression("Length", "Params.pocket7_length")
body2 = doc.addObject("PartDesign::Body", "Body001")
doc.recompute()

body.Placement = App.Placement(App.Vector(64, 0, -35), App.Rotation(App.Vector(0, 0, 1), 270))
boolean = body2.newObject("PartDesign::Boolean", "Boolean")
boolean.Type = "Fuse"
boolean.addObjects([body])

doc.recompute()
